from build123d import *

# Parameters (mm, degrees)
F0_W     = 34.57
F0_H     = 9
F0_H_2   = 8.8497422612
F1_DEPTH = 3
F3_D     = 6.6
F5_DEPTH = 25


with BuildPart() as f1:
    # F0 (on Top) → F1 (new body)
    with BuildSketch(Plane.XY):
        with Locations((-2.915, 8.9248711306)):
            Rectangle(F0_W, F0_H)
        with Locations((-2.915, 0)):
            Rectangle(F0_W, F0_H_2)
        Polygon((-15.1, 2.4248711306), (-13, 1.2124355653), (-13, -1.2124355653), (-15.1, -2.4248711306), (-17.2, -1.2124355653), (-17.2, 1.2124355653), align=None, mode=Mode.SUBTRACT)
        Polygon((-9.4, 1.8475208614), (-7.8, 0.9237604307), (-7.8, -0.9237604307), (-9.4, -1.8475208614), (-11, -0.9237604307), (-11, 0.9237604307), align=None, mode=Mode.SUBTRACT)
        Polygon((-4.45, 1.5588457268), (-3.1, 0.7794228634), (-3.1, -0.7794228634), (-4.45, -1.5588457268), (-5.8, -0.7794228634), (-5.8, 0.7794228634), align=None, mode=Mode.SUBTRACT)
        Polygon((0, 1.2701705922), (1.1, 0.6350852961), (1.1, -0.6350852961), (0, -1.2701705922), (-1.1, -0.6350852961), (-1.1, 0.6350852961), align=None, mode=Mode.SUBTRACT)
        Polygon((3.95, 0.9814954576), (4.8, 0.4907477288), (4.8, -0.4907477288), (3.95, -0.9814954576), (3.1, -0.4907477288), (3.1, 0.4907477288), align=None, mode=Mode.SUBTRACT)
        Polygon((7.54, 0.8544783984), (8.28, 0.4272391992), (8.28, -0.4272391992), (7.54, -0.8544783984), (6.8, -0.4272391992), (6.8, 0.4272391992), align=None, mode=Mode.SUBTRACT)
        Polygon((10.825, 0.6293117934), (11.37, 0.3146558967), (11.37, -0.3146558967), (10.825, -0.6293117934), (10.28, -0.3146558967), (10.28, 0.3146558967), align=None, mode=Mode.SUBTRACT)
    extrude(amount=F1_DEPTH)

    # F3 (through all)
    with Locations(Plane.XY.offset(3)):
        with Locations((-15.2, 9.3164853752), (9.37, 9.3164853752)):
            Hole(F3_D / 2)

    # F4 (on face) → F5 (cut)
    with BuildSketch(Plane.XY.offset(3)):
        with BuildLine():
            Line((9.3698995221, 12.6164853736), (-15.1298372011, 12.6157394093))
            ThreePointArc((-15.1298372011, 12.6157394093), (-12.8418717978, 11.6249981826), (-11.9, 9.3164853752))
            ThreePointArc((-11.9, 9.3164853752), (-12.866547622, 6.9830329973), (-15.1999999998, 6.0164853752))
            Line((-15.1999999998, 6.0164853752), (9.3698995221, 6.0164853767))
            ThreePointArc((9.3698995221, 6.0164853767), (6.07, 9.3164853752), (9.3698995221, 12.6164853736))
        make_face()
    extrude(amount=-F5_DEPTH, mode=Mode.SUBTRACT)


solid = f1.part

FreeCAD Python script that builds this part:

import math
import FreeCAD as App
import Part
import Sketcher

V = App.Vector
Q = App.Units.Quantity

doc = App.newDocument("Part")
body = doc.addObject("PartDesign::Body", "Body")

# Sketch on XY plane
sketch1 = body.newObject("Sketcher::SketchObject", "Sketch")
sketch1.AttachmentSupport = (doc.getObject("XY_Plane"), [""])
sketch1.MapMode = "FlatFace"
sketch1.addGeometry(Part.LineSegment(V(-20.2, 13.424871, 0), V(-20.2, -4.424871, 0)), False)
sketch1.addGeometry(Part.LineSegment(V(-20.2, -4.424871, 0), V(14.37, -4.424871, 0)), False)
sketch1.addGeometry(Part.LineSegment(V(14.37, -4.424871, 0), V(14.37, 13.424871, 0)), False)
sketch1.addGeometry(Part.LineSegment(V(14.37, 13.424871, 0), V(-20.2, 13.424871, 0)), False)
sketch1.addGeometry(Part.LineSegment(V(-17.2, 1.212436, 0), V(-15.1, 2.424871, 0)), False)
sketch1.addGeometry(Part.LineSegment(V(-15.1, 2.424871, 0), V(-13, 1.212436, 0)), False)
sketch1.addGeometry(Part.LineSegment(V(-13, 1.212436, 0), V(-13, -1.212436, 0)), False)
sketch1.addGeometry(Part.LineSegment(V(-13, -1.212436, 0), V(-15.1, -2.424871, 0)), False)
sketch1.addGeometry(Part.LineSegment(V(-15.1, -2.424871, 0), V(-17.2, -1.212436, 0)), False)
sketch1.addGeometry(Part.LineSegment(V(-17.2, -1.212436, 0), V(-17.2, 1.212436, 0)), False)
sketch1.addGeometry(Part.LineSegment(V(-11, 0.92376, 0), V(-9.4, 1.847521, 0)), False)
sketch1.addGeometry(Part.LineSegment(V(-9.4, 1.847521, 0), V(-7.8, 0.92376, 0)), False)
sketch1.addGeometry(Part.LineSegment(V(-7.8, 0.92376, 0), V(-7.8, -0.92376, 0)), False)
sketch1.addGeometry(Part.LineSegment(V(-7.8, -0.92376, 0), V(-9.4, -1.847521, 0)), False)
sketch1.addGeometry(Part.LineSegment(V(-9.4, -1.847521, 0), V(-11, -0.92376, 0)), False)
sketch1.addGeometry(Part.LineSegment(V(-11, -0.92376, 0), V(-11, 0.92376, 0)), False)
sketch1.addGeometry(Part.LineSegment(V(-5.8, 0.779423, 0), V(-4.45, 1.558846, 0)), False)
sketch1.addGeometry(Part.LineSegment(V(-4.45, 1.558846, 0), V(-3.1, 0.779423, 0)), False)
sketch1.addGeometry(Part.LineSegment(V(-3.1, 0.779423, 0), V(-3.1, -0.779423, 0)), False)
sketch1.addGeometry(Part.LineSegment(V(-3.1, -0.779423, 0), V(-4.45, -1.558846, 0)), False)
sketch1.addGeometry(Part.LineSegment(V(-4.45, -1.558846, 0), V(-5.8, -0.779423, 0)), False)
sketch1.addGeometry(Part.LineSegment(V(-5.8, -0.779423, 0), V(-5.8, 0.779423, 0)), False)
sketch1.addGeometry(Part.LineSegment(V(-1.1, 0.635085, 0), V(0, 1.270171, 0)), False)
sketch1.addGeometry(Part.LineSegment(V(0, 1.270171, 0), V(1.1, 0.635085, 0)), False)
sketch1.addGeometry(Part.LineSegment(V(1.1, 0.635085, 0), V(1.1, -0.635085, 0)), False)
sketch1.addGeometry(Part.LineSegment(V(1.1, -0.635085, 0), V(0, -1.270171, 0)), False)
sketch1.addGeometry(Part.LineSegment(V(0, -1.270171, 0), V(-1.1, -0.635085, 0)), False)
sketch1.addGeometry(Part.LineSegment(V(-1.1, -0.635085, 0), V(-1.1, 0.635085, 0)), False)
sketch1.addGeometry(Part.LineSegment(V(3.1, 0.490748, 0), V(3.95, 0.981495, 0)), False)
sketch1.addGeometry(Part.LineSegment(V(3.95, 0.981495, 0), V(4.8, 0.490748, 0)), False)
sketch1.addGeometry(Part.LineSegment(V(4.8, 0.490748, 0), V(4.8, -0.490748, 0)), False)
sketch1.addGeometry(Part.LineSegment(V(4.8, -0.490748, 0), V(3.95, -0.981495, 0)), False)
sketch1.addGeometry(Part.LineSegment(V(3.95, -0.981495, 0), V(3.1, -0.490748, 0)), False)
sketch1.addGeometry(Part.LineSegment(V(3.1, -0.490748, 0), V(3.1, 0.490748, 0)), False)
sketch1.addGeometry(Part.LineSegment(V(6.8, 0.427239, 0), V(7.54, 0.854478, 0)), False)
sketch1.addGeometry(Part.LineSegment(V(7.54, 0.854478, 0), V(8.28, 0.427239, 0)), False)
sketch1.addGeometry(Part.LineSegment(V(8.28, 0.427239, 0), V(8.28, -0.427239, 0)), False)
sketch1.addGeometry(Part.LineSegment(V(8.28, -0.427239, 0), V(7.54, -0.854478, 0)), False)
sketch1.addGeometry(Part.LineSegment(V(7.54, -0.854478, 0), V(6.8, -0.427239, 0)), False)
sketch1.addGeometry(Part.LineSegment(V(6.8, -0.427239, 0), V(6.8, 0.427239, 0)), False)
sketch1.addGeometry(Part.LineSegment(V(10.28, 0.314656, 0), V(10.825, 0.629312, 0)), False)
sketch1.addGeometry(Part.LineSegment(V(10.825, 0.629312, 0), V(11.37, 0.314656, 0)), False)
sketch1.addGeometry(Part.LineSegment(V(11.37, 0.314656, 0), V(11.37, -0.314656, 0)), False)
sketch1.addGeometry(Part.LineSegment(V(11.37, -0.314656, 0), V(10.825, -0.629312, 0)), False)
sketch1.addGeometry(Part.LineSegment(V(10.825, -0.629312, 0), V(10.28, -0.314656, 0)), False)
sketch1.addGeometry(Part.LineSegment(V(10.28, -0.314656, 0), V(10.28, 0.314656, 0)), False)
sketch1.addConstraint(Sketcher.Constraint("Coincident", 0, 2, 1, 1))
sketch1.addConstraint(Sketcher.Constraint("Coincident", 1, 2, 2, 1))
sketch1.addConstraint(Sketcher.Constraint("Coincident", 2, 2, 3, 1))
sketch1.addConstraint(Sketcher.Constraint("Coincident", 3, 2, 0, 1))
sketch1.addConstraint(Sketcher.Constraint("Coincident", 4, 2, 5, 1))
sketch1.addConstraint(Sketcher.Constraint("Coincident", 5, 2, 6, 1))
sketch1.addConstraint(Sketcher.Constraint("Coincident", 6, 2, 7, 1))
sketch1.addConstraint(Sketcher.Constraint("Coincident", 7, 2, 8, 1))
sketch1.addConstraint(Sketcher.Constraint("Coincident", 8, 2, 9, 1))
sketch1.addConstraint(Sketcher.Constraint("Coincident", 9, 2, 4, 1))
sketch1.addConstraint(Sketcher.Constraint("Coincident", 10, 2, 11, 1))
sketch1.addConstraint(Sketcher.Constraint("Coincident", 11, 2, 12, 1))
sketch1.addConstraint(Sketcher.Constraint("Coincident", 12, 2, 13, 1))
sketch1.addConstraint(Sketcher.Constraint("Coincident", 13, 2, 14, 1))
sketch1.addConstraint(Sketcher.Constraint("Coincident", 14, 2, 15, 1))
sketch1.addConstraint(Sketcher.Constraint("Coincident", 15, 2, 10, 1))
sketch1.addConstraint(Sketcher.Constraint("Coincident", 16, 2, 17, 1))
sketch1.addConstraint(Sketcher.Constraint("Coincident", 17, 2, 18, 1))
sketch1.addConstraint(Sketcher.Constraint("Coincident", 18, 2, 19, 1))
sketch1.addConstraint(Sketcher.Constraint("Coincident", 19, 2, 20, 1))
sketch1.addConstraint(Sketcher.Constraint("Coincident", 20, 2, 21, 1))
sketch1.addConstraint(Sketcher.Constraint("Coincident", 21, 2, 16, 1))
sketch1.addConstraint(Sketcher.Constraint("Coincident", 22, 2, 23, 1))
sketch1.addConstraint(Sketcher.Constraint("Coincident", 23, 2, 24, 1))
sketch1.addConstraint(Sketcher.Constraint("Coincident", 24, 2, 25, 1))
sketch1.addConstraint(Sketcher.Constraint("Coincident", 25, 2, 26, 1))
sketch1.addConstraint(Sketcher.Constraint("Coincident", 26, 2, 27, 1))
sketch1.addConstraint(Sketcher.Constraint("Coincident", 27, 2, 22, 1))
sketch1.addConstraint(Sketcher.Constraint("Coincident", 28, 2, 29, 1))
sketch1.addConstraint(Sketcher.Constraint("Coincident", 29, 2, 30, 1))
sketch1.addConstraint(Sketcher.Constraint("Coincident", 30, 2, 31, 1))
sketch1.addConstraint(Sketcher.Constraint("Coincident", 31, 2, 32, 1))
sketch1.addConstraint(Sketcher.Constraint("Coincident", 32, 2, 33, 1))
sketch1.addConstraint(Sketcher.Constraint("Coincident", 33, 2, 28, 1))
sketch1.addConstraint(Sketcher.Constraint("Coincident", 34, 2, 35, 1))
sketch1.addConstraint(Sketcher.Constraint("Coincident", 35, 2, 36, 1))
sketch1.addConstraint(Sketcher.Constraint("Coincident", 36, 2, 37, 1))
sketch1.addConstraint(Sketcher.Constraint("Coincident", 37, 2, 38, 1))
sketch1.addConstraint(Sketcher.Constraint("Coincident", 38, 2, 39, 1))
sketch1.addConstraint(Sketcher.Constraint("Coincident", 39, 2, 34, 1))
sketch1.addConstraint(Sketcher.Constraint("Coincident", 40, 2, 41, 1))
sketch1.addConstraint(Sketcher.Constraint("Coincident", 41, 2, 42, 1))
sketch1.addConstraint(Sketcher.Constraint("Coincident", 42, 2, 43, 1))
sketch1.addConstraint(Sketcher.Constraint("Coincident", 43, 2, 44, 1))
sketch1.addConstraint(Sketcher.Constraint("Coincident", 44, 2, 45, 1))
sketch1.addConstraint(Sketcher.Constraint("Coincident", 45, 2, 40, 1))
sketch1.addConstraint(Sketcher.Constraint("Vertical", 0))
sketch1.addConstraint(Sketcher.Constraint("Horizontal", 1))
sketch1.addConstraint(Sketcher.Constraint("Vertical", 2))
sketch1.addConstraint(Sketcher.Constraint("Horizontal", 3))
sketch1.addConstraint(Sketcher.Constraint("Vertical", 6))
sketch1.addConstraint(Sketcher.Constraint("Vertical", 9))
sketch1.addConstraint(Sketcher.Constraint("Vertical", 12))
sketch1.addConstraint(Sketcher.Constraint("Vertical", 15))
sketch1.addConstraint(Sketcher.Constraint("Vertical", 18))
sketch1.addConstraint(Sketcher.Constraint("Vertical", 21))
sketch1.addConstraint(Sketcher.Constraint("Vertical", 24))
sketch1.addConstraint(Sketcher.Constraint("Vertical", 27))
sketch1.addConstraint(Sketcher.Constraint("Vertical", 30))
sketch1.addConstraint(Sketcher.Constraint("Vertical", 33))
sketch1.addConstraint(Sketcher.Constraint("Vertical", 36))
sketch1.addConstraint(Sketcher.Constraint("Vertical", 39))
sketch1.addConstraint(Sketcher.Constraint("Vertical", 42))
sketch1.addConstraint(Sketcher.Constraint("Vertical", 45))
sketch1.addConstraint(Sketcher.Constraint("Symmetric", 22, 2, 25, 2, -1, 1))
sketch1.addConstraint(Sketcher.Constraint("Symmetric", 23, 2, 26, 2, -1, 1))
sketch1.addConstraint(Sketcher.Constraint("Symmetric", 4, 2, 7, 2, -1))
sketch1.addConstraint(Sketcher.Constraint("Symmetric", 10, 2, 13, 2, -1))
sketch1.addConstraint(Sketcher.Constraint("Symmetric", 16, 2, 19, 2, -1))
sketch1.addConstraint(Sketcher.Constraint("Symmetric", 28, 2, 31, 2, -1))
sketch1.addConstraint(Sketcher.Constraint("Symmetric", 34, 2, 37, 2, -1))
sketch1.addConstraint(Sketcher.Constraint("Symmetric", 40, 2, 43, 2, -1))
sketch1.addConstraint(Sketcher.Constraint("PointOnObject", 22, 2, -2))
sketch1.addConstraint(Sketcher.Constraint("Parallel", 4, 7))
sketch1.addConstraint(Sketcher.Constraint("Parallel", 5, 8))
sketch1.addConstraint(Sketcher.Constraint("Parallel", 7, 10))
sketch1.addConstraint(Sketcher.Constraint("Parallel", 8, 11))
sketch1.addConstraint(Sketcher.Constraint("Parallel", 10, 13))
sketch1.addConstraint(Sketcher.Constraint("Parallel", 11, 14))
sketch1.addConstraint(Sketcher.Constraint("Parallel", 13, 16))
sketch1.addConstraint(Sketcher.Constraint("Parallel", 14, 17))
sketch1.addConstraint(Sketcher.Constraint("Parallel", 16, 19))
sketch1.addConstraint(Sketcher.Constraint("Parallel", 17, 20))
sketch1.addConstraint(Sketcher.Constraint("Parallel", 19, 22))
sketch1.addConstraint(Sketcher.Constraint("Parallel", 20, 23))
sketch1.addConstraint(Sketcher.Constraint("Parallel", 22, 25))
sketch1.addConstraint(Sketcher.Constraint("Parallel", 25, 28))
sketch1.addConstraint(Sketcher.Constraint("Parallel", 26, 29))
sketch1.addConstraint(Sketcher.Constraint("Parallel", 28, 31))
sketch1.addConstraint(Sketcher.Constraint("Parallel", 29, 32))
sketch1.addConstraint(Sketcher.Constraint("Parallel", 31, 34))
sketch1.addConstraint(Sketcher.Constraint("Parallel", 32, 35))
sketch1.addConstraint(Sketcher.Constraint("Parallel", 34, 37))
sketch1.addConstraint(Sketcher.Constraint("Parallel", 35, 38))
sketch1.addConstraint(Sketcher.Constraint("Parallel", 37, 40))
sketch1.addConstraint(Sketcher.Constraint("Parallel", 38, 41))
sketch1.addConstraint(Sketcher.Constraint("Parallel", 40, 43))
sketch1.addConstraint(Sketcher.Constraint("Parallel", 41, 44))
sketch1.addConstraint(Sketcher.Constraint("Horizontal", 6, 2, 8, 2))
sketch1.addConstraint(Sketcher.Constraint("Horizontal", 5, 2, 9, 2))
sketch1.addConstraint(Sketcher.Constraint("Horizontal", 12, 2, 14, 2))
sketch1.addConstraint(Sketcher.Constraint("Horizontal", 18, 2, 20, 2))
sketch1.addConstraint(Sketcher.Constraint("Horizontal", 30, 2, 32, 2))
sketch1.addConstraint(Sketcher.Constraint("Horizontal", 36, 2, 38, 2))
sketch1.addConstraint(Sketcher.Constraint("Horizontal", 42, 2, 44, 2))
sketch1.addConstraint(Sketcher.Constraint("Angle", 4, Q("30 deg")))
sketch1.addConstraint(Sketcher.Constraint("DistanceX", 5, 2, -1, 1, 13.0))
sketch1.addConstraint(Sketcher.Constraint("DistanceX", 14, 2, -1, 1, 11.0))
sketch1.addConstraint(Sketcher.Constraint("DistanceY", 4, 2, 3, 2, 11.0))
sketch1.addConstraint(Sketcher.Constraint("DistanceY", 0, 2, 7, 2, 2.0))
sketch1.addConstraint(Sketcher.Constraint("DistanceX", 0, 2, 8, 2, 3.0))
sketch1.addConstraint(Sketcher.Constraint("DistanceX", 12, 2, 20, 2, 2.0))
sketch1.addConstraint(Sketcher.Constraint("DistanceX", 18, 2, 26, 2, 2.0))
sketch1.addConstraint(Sketcher.Constraint("DistanceX", 24, 2, 32, 2, 2.0))
sketch1.addConstraint(Sketcher.Constraint("DistanceX", 30, 2, 38, 2, 2.0))
sketch1.addConstraint(Sketcher.Constraint("DistanceX", 36, 2, 44, 2, 2.0))
sketch1.addConstraint(Sketcher.Constraint("DistanceX", 1, 1, 1, 2, 34.57))
sketch1.addConstraint(Sketcher.Constraint("DistanceX", 0, 2, -1, 1, 20.2))
sketch1.addConstraint(Sketcher.Constraint("DistanceX", 10, 2, -1, 1, 9.4))
sketch1.addConstraint(Sketcher.Constraint("DistanceX", 17, 2, -1, 1, 3.1))
sketch1.addConstraint(Sketcher.Constraint("DistanceX", -1, 1, 29, 2, 4.8))
sketch1.addConstraint(Sketcher.Constraint("DistanceX", -1, 1, 34, 2, 7.54))
sketch1.addConstraint(Sketcher.Constraint("DistanceX", -1, 1, 41, 2, 11.37))
sketch1.addConstraint(Sketcher.Constraint("DistanceY", 6, 2, 6, 1, 2.424871))
sketch1.addConstraint(Sketcher.Constraint("DistanceY", 12, 2, 12, 1, 1.847521))
sketch1.addConstraint(Sketcher.Constraint("DistanceY", 24, 2, 24, 1, 1.270171))
sketch1.addConstraint(Sketcher.Constraint("DistanceY", 36, 2, 36, 1, 0.854478))
sketch1.addConstraint(Sketcher.Constraint("DistanceY", 42, 2, 42, 1, 0.629312))
sketch1.addConstraint(Sketcher.Constraint("DistanceY", 18, 2, 18, 1, 1.558846))
sketch1.addConstraint(Sketcher.Constraint("DistanceY", 30, 2, 30, 1, 0.981495))
pad1 = body.newObject("PartDesign::Pad", "Pad")
pad1.Profile = sketch1
pad1.Length = 3

# Sketch on XY plane
sketch2 = body.newObject("Sketcher::SketchObject", "Sketch001")
sketch2.AttachmentSupport = (doc.getObject("XY_Plane"), [""])
sketch2.MapMode = "FlatFace"
sketch2.AttachmentOffset = App.Placement(V(0, 0, 3), App.Rotation())
sketch2.addGeometry(Part.Circle(V(-15.2, 9.316485, 0), V(0, 0, 1), 3.3), False)
sketch2.addGeometry(Part.Circle(V(9.37, 9.316485, 0), V(0, 0, 1), 3.3), False)
sketch2.addConstraint(Sketcher.Constraint("Equal", 0, 1))
sketch2.addConstraint(Sketcher.Constraint("Horizontal", 0, 3, 1, 3))
sketch2.addConstraint(Sketcher.Constraint("Diameter", 0, 6.6))
sketch2.addConstraint(Sketcher.Constraint("DistanceX", 0, 3, -1, 1, 15.2))
sketch2.addConstraint(Sketcher.Constraint("DistanceX", -1, 1, 1, 3, 9.37))
sketch2.addConstraint(Sketcher.Constraint("DistanceY", -1, 1, 0, 3, 9.316485))
doc.recompute()
hole = body.newObject("PartDesign::Hole", "Hole")
hole.Profile = sketch2
hole.ThreadType = "None"
hole.Diameter = 6.6
hole.DepthType = "ThroughAll"

# Sketch on XY plane
sketch3 = body.newObject("Sketcher::SketchObject", "Sketch002")
sketch3.AttachmentSupport = (doc.getObject("XY_Plane"), [""])
sketch3.MapMode = "FlatFace"
sketch3.AttachmentOffset = App.Placement(V(0, 0, 3), App.Rotation())
sketch3.addGeometry(Part.LineSegment(V(9.3699, 12.616485, 0), V(-15.129837, 12.615739, 0)), False)
sketch3.addGeometry(Part.ArcOfCircle(Part.Circle(V(-15.2, 9.316485, 0), V(0, 0, 1), 3.3), math.radians(0), math.radians(88.781717)), False)
sketch3.addGeometry(Part.ArcOfCircle(Part.Circle(V(-15.2, 9.316485, 0), V(0, 0, 1), 3.3), math.radians(-90), math.radians(0)), False)
sketch3.addGeometry(Part.LineSegment(V(-15.2, 6.016485, 0), V(9.3699, 6.016485, 0)), False)
sketch3.addGeometry(Part.ArcOfCircle(Part.Circle(V(9.37, 9.316485, 0), V(0, 0, 1), 3.3), math.radians(90.001745), math.radians(269.998255)), False)
sketch3.addConstraint(Sketcher.Constraint("Coincident", 0, 2, 1, 2))
sketch3.addConstraint(Sketcher.Constraint("Coincident", 1, 1, 2, 2))
sketch3.addConstraint(Sketcher.Constraint("Coincident", 2, 1, 3, 1))
sketch3.addConstraint(Sketcher.Constraint("Coincident", 3, 2, 4, 2))
sketch3.addConstraint(Sketcher.Constraint("Coincident", 4, 1, 0, 1))
sketch3.addConstraint(Sketcher.Constraint("Horizontal", 3))
sketch3.addConstraint(Sketcher.Constraint("Coincident", 2, 3, 1, 3))
sketch3.addConstraint(Sketcher.Constraint("Radius", 1, 3.3))
sketch3.addConstraint(Sketcher.Constraint("Radius", 4, 3.3))
sketch3.addConstraint(Sketcher.Constraint("DistanceX", 1, 3, -1, 1, 15.2))
sketch3.addConstraint(Sketcher.Constraint("DistanceX", 2, 1, -1, 1, 15.2))
sketch3.addConstraint(Sketcher.Constraint("DistanceY", 2, 1, 1, 1, 3.3))
sketch3.addConstraint(Sketcher.Constraint("DistanceX", -1, 1, 4, 3, 9.37))
sketch3.addConstraint(Sketcher.Constraint("DistanceX", 3, 1, 3, 2, 24.5699))
sketch3.addConstraint(Sketcher.Constraint("DistanceX", -1, 1, 4, 1, 9.3699))
sketch3.addConstraint(Sketcher.Constraint("DistanceY", -1, 1, 0, 2, 12.615739))
sketch3.addConstraint(Sketcher.Constraint("Distance", 0, 24.499737))
pocket1 = body.newObject("PartDesign::Pocket", "Pocket")
pocket1.Profile = sketch3
pocket1.Length = 25

doc.recompute()
